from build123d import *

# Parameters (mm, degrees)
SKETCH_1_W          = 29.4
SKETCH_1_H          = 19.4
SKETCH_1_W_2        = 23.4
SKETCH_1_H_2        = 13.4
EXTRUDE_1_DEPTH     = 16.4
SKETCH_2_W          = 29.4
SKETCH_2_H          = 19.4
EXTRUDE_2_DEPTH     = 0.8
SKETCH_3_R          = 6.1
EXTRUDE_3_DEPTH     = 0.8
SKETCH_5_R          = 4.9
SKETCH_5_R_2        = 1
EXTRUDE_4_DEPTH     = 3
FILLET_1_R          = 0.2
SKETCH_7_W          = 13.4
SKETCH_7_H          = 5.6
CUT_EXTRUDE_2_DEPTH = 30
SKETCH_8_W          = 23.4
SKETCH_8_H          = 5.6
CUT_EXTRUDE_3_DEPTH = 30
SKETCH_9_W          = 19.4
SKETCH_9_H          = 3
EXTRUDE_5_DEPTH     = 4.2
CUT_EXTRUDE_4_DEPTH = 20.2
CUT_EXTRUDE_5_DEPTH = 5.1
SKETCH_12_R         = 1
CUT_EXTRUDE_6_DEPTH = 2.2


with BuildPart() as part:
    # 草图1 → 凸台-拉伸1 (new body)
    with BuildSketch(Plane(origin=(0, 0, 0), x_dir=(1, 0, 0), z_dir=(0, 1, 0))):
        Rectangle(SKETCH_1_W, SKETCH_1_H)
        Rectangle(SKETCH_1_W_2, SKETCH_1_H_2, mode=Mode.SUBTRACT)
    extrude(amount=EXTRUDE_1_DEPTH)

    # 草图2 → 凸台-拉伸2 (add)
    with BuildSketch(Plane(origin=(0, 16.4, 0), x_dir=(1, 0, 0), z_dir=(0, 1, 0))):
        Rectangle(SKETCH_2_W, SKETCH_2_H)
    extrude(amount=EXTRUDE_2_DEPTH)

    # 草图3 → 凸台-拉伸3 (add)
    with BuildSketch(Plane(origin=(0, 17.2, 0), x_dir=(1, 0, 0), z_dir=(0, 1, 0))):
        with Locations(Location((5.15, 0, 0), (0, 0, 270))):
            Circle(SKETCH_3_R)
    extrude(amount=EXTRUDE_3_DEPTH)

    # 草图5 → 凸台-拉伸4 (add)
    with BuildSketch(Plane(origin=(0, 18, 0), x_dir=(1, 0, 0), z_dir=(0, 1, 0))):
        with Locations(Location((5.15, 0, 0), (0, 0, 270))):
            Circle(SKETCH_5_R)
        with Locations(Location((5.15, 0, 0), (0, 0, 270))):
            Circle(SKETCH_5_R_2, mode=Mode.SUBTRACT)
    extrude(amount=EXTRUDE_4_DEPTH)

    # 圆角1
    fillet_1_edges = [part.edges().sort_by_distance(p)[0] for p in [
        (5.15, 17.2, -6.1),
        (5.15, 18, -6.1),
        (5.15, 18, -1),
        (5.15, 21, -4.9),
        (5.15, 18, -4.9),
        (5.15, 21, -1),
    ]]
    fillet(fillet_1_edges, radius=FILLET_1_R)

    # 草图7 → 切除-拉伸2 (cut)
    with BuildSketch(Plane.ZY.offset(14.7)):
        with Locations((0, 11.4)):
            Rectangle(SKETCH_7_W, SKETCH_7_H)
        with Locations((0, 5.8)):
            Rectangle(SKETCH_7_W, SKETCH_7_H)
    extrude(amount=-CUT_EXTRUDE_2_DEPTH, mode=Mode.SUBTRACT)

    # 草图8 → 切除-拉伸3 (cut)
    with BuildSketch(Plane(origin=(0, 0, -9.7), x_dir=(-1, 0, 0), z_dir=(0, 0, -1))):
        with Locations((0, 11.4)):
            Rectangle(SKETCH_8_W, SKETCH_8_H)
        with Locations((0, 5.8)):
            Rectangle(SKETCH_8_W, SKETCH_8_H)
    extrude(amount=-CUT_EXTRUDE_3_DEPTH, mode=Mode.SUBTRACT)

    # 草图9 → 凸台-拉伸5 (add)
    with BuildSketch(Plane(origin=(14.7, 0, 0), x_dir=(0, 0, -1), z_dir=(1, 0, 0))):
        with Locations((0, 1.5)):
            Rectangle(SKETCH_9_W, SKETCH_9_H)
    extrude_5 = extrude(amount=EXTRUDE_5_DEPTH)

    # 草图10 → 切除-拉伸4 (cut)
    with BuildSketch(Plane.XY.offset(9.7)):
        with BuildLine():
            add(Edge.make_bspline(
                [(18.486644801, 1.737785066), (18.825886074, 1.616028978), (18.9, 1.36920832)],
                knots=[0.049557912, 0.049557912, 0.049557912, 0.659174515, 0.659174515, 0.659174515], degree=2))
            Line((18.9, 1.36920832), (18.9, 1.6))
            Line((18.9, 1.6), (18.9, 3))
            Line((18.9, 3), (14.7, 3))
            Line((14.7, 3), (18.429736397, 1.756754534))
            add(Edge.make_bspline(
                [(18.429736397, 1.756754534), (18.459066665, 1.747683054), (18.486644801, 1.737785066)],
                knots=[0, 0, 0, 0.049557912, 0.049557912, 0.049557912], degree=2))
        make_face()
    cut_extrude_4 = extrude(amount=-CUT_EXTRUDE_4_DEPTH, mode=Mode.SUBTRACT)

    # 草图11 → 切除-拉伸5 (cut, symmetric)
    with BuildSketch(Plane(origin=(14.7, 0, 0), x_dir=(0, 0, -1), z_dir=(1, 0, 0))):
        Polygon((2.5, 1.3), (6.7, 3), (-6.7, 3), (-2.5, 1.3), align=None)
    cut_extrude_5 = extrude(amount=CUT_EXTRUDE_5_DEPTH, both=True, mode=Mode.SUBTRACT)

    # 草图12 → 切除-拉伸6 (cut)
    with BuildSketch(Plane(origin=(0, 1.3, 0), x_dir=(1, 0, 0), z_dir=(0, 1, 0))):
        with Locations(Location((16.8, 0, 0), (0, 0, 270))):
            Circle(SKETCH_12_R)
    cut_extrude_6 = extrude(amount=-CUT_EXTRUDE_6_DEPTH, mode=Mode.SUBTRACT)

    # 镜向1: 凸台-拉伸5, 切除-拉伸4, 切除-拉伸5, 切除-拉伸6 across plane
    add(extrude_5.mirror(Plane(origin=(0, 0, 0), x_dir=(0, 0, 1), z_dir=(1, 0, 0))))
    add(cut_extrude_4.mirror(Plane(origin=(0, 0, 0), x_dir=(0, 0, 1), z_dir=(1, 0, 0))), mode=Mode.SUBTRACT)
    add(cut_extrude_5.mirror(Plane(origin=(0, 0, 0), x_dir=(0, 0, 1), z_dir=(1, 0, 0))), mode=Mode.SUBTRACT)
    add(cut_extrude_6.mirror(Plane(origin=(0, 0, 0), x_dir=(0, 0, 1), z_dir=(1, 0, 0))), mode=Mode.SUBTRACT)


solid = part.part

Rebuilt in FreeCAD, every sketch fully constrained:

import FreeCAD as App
import Part
import Sketcher
Q = App.Units.Quantity


def edges_at(feature, points):
    """Names of the edges that pass closest to the given points."""
    edges = feature.Shape.Edges
    near = lambda p: min(range(len(edges)), key=lambda i: edges[i].distToShape(Part.Vertex(*p))[0])
    return sorted({f"Edge{near(p) + 1}" for p in points})

doc = App.newDocument("Part")
body = doc.addObject("PartDesign::Body", "Body")

# Sketch on XZ plane
sketch1 = doc.addObject("Sketcher::SketchObject", "Sketch")
body.addObject(sketch1)
sketch1.AttachmentSupport = (doc.XZ_Plane, [""])
sketch1.MapMode = "FlatFace"
sketch1.addGeometry([
    Part.LineSegment(App.Vector(-15, -10, 0), App.Vector(-15, 10, 0)),  # 0
    Part.LineSegment(App.Vector(-15, 10, 0), App.Vector(15, 10, 0)),  # 1
    Part.LineSegment(App.Vector(15, 10, 0), App.Vector(15, -10, 0)),  # 2
    Part.LineSegment(App.Vector(15, -10, 0), App.Vector(-15, -10, 0)),  # 3
    Part.LineSegment(App.Vector(12, 7, 0), App.Vector(-12, 7, 0)),  # 4
    Part.LineSegment(App.Vector(-12, 7, 0), App.Vector(-12, -7, 0)),  # 5
    Part.LineSegment(App.Vector(-12, -7, 0), App.Vector(12, -7, 0)),  # 6
    Part.LineSegment(App.Vector(12, -7, 0), App.Vector(12, 7, 0)),  # 7
], False)
sketch1.addConstraint([
    Sketcher.Constraint("Coincident", 0, 2, 1, 1),
    Sketcher.Constraint("Coincident", 1, 2, 2, 1),
    Sketcher.Constraint("Coincident", 2, 2, 3, 1),
    Sketcher.Constraint("Coincident", 3, 2, 0, 1),
    Sketcher.Constraint("Coincident", 4, 2, 5, 1),
    Sketcher.Constraint("Coincident", 5, 2, 6, 1),
    Sketcher.Constraint("Coincident", 6, 2, 7, 1),
    Sketcher.Constraint("Coincident", 7, 2, 4, 1),
    Sketcher.Constraint("Vertical", 0),
    Sketcher.Constraint("Horizontal", 1),
    Sketcher.Constraint("Vertical", 2),
    Sketcher.Constraint("Horizontal", 3),
    Sketcher.Constraint("Horizontal", 4),
    Sketcher.Constraint("Vertical", 5),
    Sketcher.Constraint("Horizontal", 6),
    Sketcher.Constraint("Vertical", 7),
    Sketcher.Constraint("Symmetric", 0, 2, 2, 2, -1, 1),
    Sketcher.Constraint("Symmetric", 4, 2, 6, 2, -1, 1),
    Sketcher.Constraint("DistanceX", 1, 1, 1, 2, Q("29.4 mm")),
    Sketcher.Constraint("DistanceX", 4, 2, 4, 1, Q("23.4 mm")),
    Sketcher.Constraint("DistanceY", 0, 1, 0, 2, Q("19.4 mm")),
    Sketcher.Constraint("DistanceY", 5, 2, 5, 1, Q("13.4 mm")),
])
pad1 = doc.addObject("PartDesign::Pad", "Pad")
body.addObject(pad1)
pad1.Profile = sketch1
pad1.Length = 16.4
pad1.Reversed = True

# Sketch on XZ plane
sketch2 = doc.addObject("Sketcher::SketchObject", "Sketch001")
body.addObject(sketch2)
sketch2.AttachmentSupport = (doc.XZ_Plane, [""])
sketch2.MapMode = "FlatFace"
sketch2.AttachmentOffset = App.Placement(App.Vector(0, 0, -16.4), App.Rotation())
sketch2.addGeometry([
    Part.LineSegment(App.Vector(-15, -10, 0), App.Vector(-15, 10, 0)),
    Part.LineSegment(App.Vector(-15, 10, 0), App.Vector(15, 10, 0)),
    Part.LineSegment(App.Vector(15, 10, 0), App.Vector(15, -10, 0)),
    Part.LineSegment(App.Vector(15, -10, 0), App.Vector(-15, -10, 0)),
], False)
sketch2.addConstraint([
    Sketcher.Constraint("Coincident", 0, 2, 1, 1),
    Sketcher.Constraint("Coincident", 1, 2, 2, 1),
    Sketcher.Constraint("Coincident", 2, 2, 3, 1),
    Sketcher.Constraint("Coincident", 3, 2, 0, 1),
    Sketcher.Constraint("Vertical", 0),
    Sketcher.Constraint("Horizontal", 1),
    Sketcher.Constraint("Vertical", 2),
    Sketcher.Constraint("Horizontal", 3),
    Sketcher.Constraint("Symmetric", 0, 2, 2, 2, -1, 1),
    Sketcher.Constraint("DistanceX", 1, 1, 1, 2, Q("29.4 mm")),
    Sketcher.Constraint("DistanceY", 0, 1, 0, 2, Q("19.4 mm")),
])
pad2 = doc.addObject("PartDesign::Pad", "Pad001")
body.addObject(pad2)
pad2.Profile = sketch2
pad2.Length = 0.8
pad2.Reversed = True

# Sketch on XZ plane
sketch3 = doc.addObject("Sketcher::SketchObject", "Sketch002")
body.addObject(sketch3)
sketch3.AttachmentSupport = (doc.XZ_Plane, [""])
sketch3.MapMode = "FlatFace"
sketch3.AttachmentOffset = App.Placement(App.Vector(0, 0, -17.2), App.Rotation())
sketch3.addGeometry(Part.Circle(App.Vector(5, 0, 0), App.Vector(0, 0, 1), 6), False)
sketch3.addConstraint([
    Sketcher.Constraint("PointOnObject", 0, 3, -1),
    Sketcher.Constraint("Diameter", 0, Q("12.2 mm")),
    Sketcher.Constraint("DistanceX", -1, 1, 0, 3, Q("5.15 mm")),
])
pad3 = doc.addObject("PartDesign::Pad", "Pad002")
body.addObject(pad3)
pad3.Profile = sketch3
pad3.Length = 0.8
pad3.Reversed = True

# Sketch on XZ plane
sketch4 = doc.addObject("Sketcher::SketchObject", "Sketch003")
body.addObject(sketch4)
sketch4.AttachmentSupport = (doc.XZ_Plane, [""])
sketch4.MapMode = "FlatFace"
sketch4.AttachmentOffset = App.Placement(App.Vector(0, 0, -18), App.Rotation())
sketch4.addGeometry([
    Part.Circle(App.Vector(5.2, 0, 0), App.Vector(0, 0, 1), 4.9),
    Part.Circle(App.Vector(5.2, 0, 0), App.Vector(0, 0, 1), 1),
], False)
sketch4.addConstraint([
    Sketcher.Constraint("Coincident", 1, 3, 0, 3),
    Sketcher.Constraint("PointOnObject", 0, 3, -1),
    Sketcher.Constraint("Diameter", 1, Q("2 mm")),
    Sketcher.Constraint("Diameter", 0, Q("9.8 mm")),
    Sketcher.Constraint("DistanceX", -1, 1, 0, 3, Q("5.15 mm")),
])
pad4 = doc.addObject("PartDesign::Pad", "Pad003")
body.addObject(pad4)
pad4.Profile = sketch4
pad4.Length = 3
pad4.Reversed = True
doc.recompute()

fillet = doc.addObject("PartDesign::Fillet", "Fillet")
body.addObject(fillet)
fillet.Base = (pad4, edges_at(pad4, [
    (5.15, 17.2, -6.1),
    (5.15, 18, -6.1),
    (5.15, 18, -1),
    (5.15, 21, -4.9),
    (5.15, 18, -4.9),
    (5.15, 21, -1),
]))
fillet.Radius = 0.2

# Sketch on YZ plane
sketch5 = doc.addObject("Sketcher::SketchObject", "Sketch004")
body.addObject(sketch5)
sketch5.AttachmentSupport = (doc.YZ_Plane, [""])
sketch5.MapMode = "FlatFace"
sketch5.AttachmentOffset = App.Placement(App.Vector(0, 0, -14.7), App.Rotation())
sketch5.addGeometry([
    Part.LineSegment(App.Vector(14, -7, 0), App.Vector(3, -7, 0)),
    Part.LineSegment(App.Vector(3, -7, 0), App.Vector(3, 7, 0)),
    Part.LineSegment(App.Vector(3, 7, 0), App.Vector(14, 7, 0)),
    Part.LineSegment(App.Vector(14, 7, 0), App.Vector(14, -7, 0)),
], False)
sketch5.addConstraint([
    Sketcher.Constraint("Coincident", 0, 2, 1, 1),
    Sketcher.Constraint("Coincident", 1, 2, 2, 1),
    Sketcher.Constraint("Coincident", 2, 2, 3, 1),
    Sketcher.Constraint("Coincident", 3, 2, 0, 1),
    Sketcher.Constraint("Horizontal", 0),
    Sketcher.Constraint("Vertical", 1),
    Sketcher.Constraint("Horizontal", 2),
    Sketcher.Constraint("Vertical", 3),
    Sketcher.Constraint("DistanceX", 0, 2, 0, 1, Q("11.2 mm")),
    Sketcher.Constraint("DistanceY", 1, 1, 1, 2, Q("13.4 mm")),
    Sketcher.Constraint("DistanceX", -1, 1, 0, 2, Q("3 mm")),
    Sketcher.Constraint("DistanceY", 0, 2, -1, 1, Q("6.7 mm")),
])
pocket1 = doc.addObject("PartDesign::Pocket", "Pocket")
body.addObject(pocket1)
pocket1.Profile = sketch5
pocket1.Length = 30
pocket1.Reversed = True

# Sketch on XY plane
sketch6 = doc.addObject("Sketcher::SketchObject", "Sketch005")
body.addObject(sketch6)
sketch6.AttachmentSupport = (doc.XY_Plane, [""])
sketch6.MapMode = "FlatFace"
sketch6.AttachmentOffset = App.Placement(App.Vector(0, 0, -9.7), App.Rotation())
sketch6.addGeometry([
    Part.LineSegment(App.Vector(12, 14, 0), App.Vector(12, 3, 0)),
    Part.LineSegment(App.Vector(12, 3, 0), App.Vector(-12, 3, 0)),
    Part.LineSegment(App.Vector(-12, 3, 0), App.Vector(-12, 14, 0)),
    Part.LineSegment(App.Vector(-12, 14, 0), App.Vector(12, 14, 0)),
], False)
sketch6.addConstraint([
    Sketcher.Constraint("Coincident", 0, 2, 1, 1),
    Sketcher.Constraint("Coincident", 1, 2, 2, 1),
    Sketcher.Constraint("Coincident", 2, 2, 3, 1),
    Sketcher.Constraint("Coincident", 3, 2, 0, 1),
    Sketcher.Constraint("Vertical", 0),
    Sketcher.Constraint("Horizontal", 1),
    Sketcher.Constraint("Vertical", 2),
    Sketcher.Constraint("Horizontal", 3),
    Sketcher.Constraint("DistanceX", 1, 2, 1, 1, Q("23.4 mm")),
    Sketcher.Constraint("DistanceY", 0, 2, 0, 1, Q("11.2 mm")),
    Sketcher.Constraint("DistanceY", -1, 1, 0, 2, Q("3 mm")),
    Sketcher.Constraint("DistanceX", -1, 1, 0, 2, Q("11.7 mm")),
])
pocket2 = doc.addObject("PartDesign::Pocket", "Pocket001")
body.addObject(pocket2)
pocket2.Profile = sketch6
pocket2.Length = 30
pocket2.Reversed = True

# Sketch on YZ plane
sketch7 = doc.addObject("Sketcher::SketchObject", "Sketch006")
body.addObject(sketch7)
sketch7.AttachmentSupport = (doc.YZ_Plane, [""])
sketch7.MapMode = "FlatFace"
sketch7.AttachmentOffset = App.Placement(App.Vector(0, 0, 14.7), App.Rotation())
sketch7.addGeometry([
    Part.LineSegment(App.Vector(3, 9.7, 0), App.Vector(0, 9.7, 0)),
    Part.LineSegment(App.Vector(0, 9.7, 0), App.Vector(0, -9.7, 0)),
    Part.LineSegment(App.Vector(0, -9.7, 0), App.Vector(3, -9.7, 0)),
    Part.LineSegment(App.Vector(3, -9.7, 0), App.Vector(3, 9.7, 0)),
], False)
sketch7.addConstraint([
    Sketcher.Constraint("Coincident", 0, 2, 1, 1),
    Sketcher.Constraint("Coincident", 1, 2, 2, 1),
    Sketcher.Constraint("Coincident", 2, 2, 3, 1),
    Sketcher.Constraint("Coincident", 3, 2, 0, 1),
    Sketcher.Constraint("Horizontal", 0),
    Sketcher.Constraint("Vertical", 1),
    Sketcher.Constraint("Horizontal", 2),
    Sketcher.Constraint("Vertical", 3),
    Sketcher.Constraint("Symmetric", 0, 2, 1, 2, -1, 1),
    Sketcher.Constraint("DistanceX", 0, 2, 0, 1, Q("3 mm")),
    Sketcher.Constraint("DistanceY", 1, 2, 1, 1, Q("19.4 mm")),
])
pad5 = doc.addObject("PartDesign::Pad", "Pad004")
body.addObject(pad5)
pad5.Profile = sketch7
pad5.Length = 4.2

# Sketch on XY plane
sketch8 = doc.addObject("Sketcher::SketchObject", "Sketch007")
body.addObject(sketch8)
sketch8.AttachmentSupport = (doc.XY_Plane, [""])
sketch8.MapMode = "FlatFace"
sketch8.AttachmentOffset = App.Placement(App.Vector(0, 0, 9.7), App.Rotation())
sketch8.addGeometry([
    Part.BSplineCurve([App.Vector(18.486645, 1.737785, 0), App.Vector(18.825886, 1.616029, 0), App.Vector(18.9, 1.369208, 0)], [3, 3], [0.049557912, 0.659174515], False, 2, [1, 1, 1], False),  # 0
    Part.LineSegment(App.Vector(18.9, 1.369208, 0), App.Vector(18.9, 3, 0)),  # 1
    Part.LineSegment(App.Vector(18.9, 3, 0), App.Vector(14.7, 3, 0)),  # 2
    Part.LineSegment(App.Vector(14.7, 3, 0), App.Vector(18.429736, 1.756755, 0)),  # 3
    Part.BSplineCurve([App.Vector(18.429736, 1.756755, 0), App.Vector(18.459067, 1.747683, 0), App.Vector(18.486645, 1.737785, 0)], [3, 3], [0, 0.049557912], False, 2, [1, 1, 1], False),  # 4
], False)
sketch8.addConstraint([
    Sketcher.Constraint("Block", 0),
    Sketcher.Constraint("Block", 4),
    Sketcher.Constraint("Coincident", 0, 2, 1, 1),
    Sketcher.Constraint("Coincident", 1, 2, 2, 1),
    Sketcher.Constraint("Coincident", 2, 2, 3, 1),
    Sketcher.Constraint("Coincident", 3, 2, 4, 1),
    Sketcher.Constraint("Vertical", 1),
    Sketcher.Constraint("Horizontal", 2),
    Sketcher.Constraint("DistanceX", 2, 2, 2, 1, Q("4.2 mm")),
    Sketcher.Constraint("DistanceY", -1, 1, 1, 2, Q("3 mm")),
])
pocket3 = doc.addObject("PartDesign::Pocket", "Pocket002")
body.addObject(pocket3)
pocket3.Profile = sketch8
pocket3.Length = 20.2

# Sketch on YZ plane
sketch9 = doc.addObject("Sketcher::SketchObject", "Sketch008")
body.addObject(sketch9)
sketch9.AttachmentSupport = (doc.YZ_Plane, [""])
sketch9.MapMode = "FlatFace"
sketch9.AttachmentOffset = App.Placement(App.Vector(0, 0, 14.7), App.Rotation())
sketch9.addGeometry([
    Part.LineSegment(App.Vector(1.3, -2.5, 0), App.Vector(3, -6.7, 0)),
    Part.LineSegment(App.Vector(3, -6.7, 0), App.Vector(3, 6.7, 0)),
    Part.LineSegment(App.Vector(3, 6.7, 0), App.Vector(1.3, 2.5, 0)),
    Part.LineSegment(App.Vector(1.3, 2.5, 0), App.Vector(1.3, -2.5, 0)),
], False)
sketch9.addConstraint([
    Sketcher.Constraint("Coincident", 0, 2, 1, 1),
    Sketcher.Constraint("Coincident", 1, 2, 2, 1),
    Sketcher.Constraint("Coincident", 2, 2, 3, 1),
    Sketcher.Constraint("Coincident", 3, 2, 0, 1),
    Sketcher.Constraint("Vertical", 1),
    Sketcher.Constraint("Vertical", 3),
    Sketcher.Constraint("Equal", 0, 2),
    Sketcher.Constraint("DistanceY", 3, 2, 3, 1, Q("5 mm")),
    Sketcher.Constraint("DistanceY", 1, 1, 1, 2, Q("13.4 mm")),
    Sketcher.Constraint("DistanceX", -1, 1, 0, 2, Q("3 mm")),
    Sketcher.Constraint("DistanceY", 0, 2, -1, 1, Q("6.7 mm")),
    Sketcher.Constraint("DistanceX", -1, 1, 2, 2, Q("1.3 mm")),
])
pocket4 = doc.addObject("PartDesign::Pocket", "Pocket003")
body.addObject(pocket4)
pocket4.Profile = sketch9
pocket4.Length = 10.2
pocket4.Midplane = True

# Sketch on XZ plane
sketch10 = doc.addObject("Sketcher::SketchObject", "Sketch009")
body.addObject(sketch10)
sketch10.AttachmentSupport = (doc.XZ_Plane, [""])
sketch10.MapMode = "FlatFace"
sketch10.AttachmentOffset = App.Placement(App.Vector(0, 0, -1.3), App.Rotation())
sketch10.addGeometry(Part.Circle(App.Vector(16.8, 0, 0), App.Vector(0, 0, 1), 1), False)
sketch10.addConstraint([
    Sketcher.Constraint("PointOnObject", 0, 3, -1),
    Sketcher.Constraint("Diameter", 0, Q("2 mm")),
    Sketcher.Constraint("DistanceX", -1, 1, 0, 3, Q("16.8 mm")),
])
pocket5 = doc.addObject("PartDesign::Pocket", "Pocket004")
body.addObject(pocket5)
pocket5.Profile = sketch10
pocket5.Length = 2.2
pocket5.Reversed = True
doc.recompute()

mirrored = doc.addObject("PartDesign::Mirrored", "Mirrored")
body.addObject(mirrored)
mirrored.Originals = [pad5, pocket3, pocket4, pocket5]
mirrored.MirrorPlane = (doc.YZ_Plane, [""])
body.Tip = mirrored

doc.recompute()
